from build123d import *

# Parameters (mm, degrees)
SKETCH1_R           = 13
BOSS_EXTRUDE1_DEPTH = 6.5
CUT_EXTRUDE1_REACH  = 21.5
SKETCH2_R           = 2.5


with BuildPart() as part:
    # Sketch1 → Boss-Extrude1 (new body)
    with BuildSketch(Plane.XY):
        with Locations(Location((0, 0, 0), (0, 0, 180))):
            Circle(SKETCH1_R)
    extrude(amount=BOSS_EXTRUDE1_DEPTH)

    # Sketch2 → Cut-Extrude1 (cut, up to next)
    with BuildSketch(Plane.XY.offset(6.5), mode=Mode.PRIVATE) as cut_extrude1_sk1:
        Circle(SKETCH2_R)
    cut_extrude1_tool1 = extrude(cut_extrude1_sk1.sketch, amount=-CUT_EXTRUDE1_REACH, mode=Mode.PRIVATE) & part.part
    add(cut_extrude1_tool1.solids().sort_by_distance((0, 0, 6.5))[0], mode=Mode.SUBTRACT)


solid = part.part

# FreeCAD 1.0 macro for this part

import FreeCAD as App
import Part
import Sketcher

V = App.Vector
Q = App.Units.Quantity

doc = App.newDocument("Part")
body = doc.addObject("PartDesign::Body", "Body")

# Sketch on XY plane
sketch1 = doc.addObject("Sketcher::SketchObject", "Sketch")
body.addObject(sketch1)
sketch1.AttachmentSupport = (doc.XY_Plane, [""])
sketch1.MapMode = "FlatFace"
sketch1.addGeometry(Part.Circle(V(0, 0, 0), V(0, 0, 1), 13), False)
sketch1.addConstraint([
    Sketcher.Constraint("Coincident", 0, 3, -1, 1),
    Sketcher.Constraint("Diameter", 0, Q("26 mm")),
])
pad1 = doc.addObject("PartDesign::Pad", "Pad")
body.addObject(pad1)
pad1.Profile = sketch1
pad1.Length = 6.5

# Sketch on XY plane
sketch2 = doc.addObject("Sketcher::SketchObject", "Sketch001")
body.addObject(sketch2)
sketch2.AttachmentSupport = (doc.XY_Plane, [""])
sketch2.MapMode = "FlatFace"
sketch2.AttachmentOffset = App.Placement(V(0, 0, 6.5), App.Rotation())
sketch2.addGeometry(Part.Circle(V(0, 0, 0), V(0, 0, 1), 2.5), False)
sketch2.addConstraint([
    Sketcher.Constraint("Coincident", 0, 3, -1, 1),
    Sketcher.Constraint("Diameter", 0, Q("5 mm")),
])
pocket1 = doc.addObject("PartDesign::Pocket", "Pocket")
body.addObject(pocket1)
pocket1.Profile = sketch2
pocket1.Type = "UpToFirst"

doc.recompute()
